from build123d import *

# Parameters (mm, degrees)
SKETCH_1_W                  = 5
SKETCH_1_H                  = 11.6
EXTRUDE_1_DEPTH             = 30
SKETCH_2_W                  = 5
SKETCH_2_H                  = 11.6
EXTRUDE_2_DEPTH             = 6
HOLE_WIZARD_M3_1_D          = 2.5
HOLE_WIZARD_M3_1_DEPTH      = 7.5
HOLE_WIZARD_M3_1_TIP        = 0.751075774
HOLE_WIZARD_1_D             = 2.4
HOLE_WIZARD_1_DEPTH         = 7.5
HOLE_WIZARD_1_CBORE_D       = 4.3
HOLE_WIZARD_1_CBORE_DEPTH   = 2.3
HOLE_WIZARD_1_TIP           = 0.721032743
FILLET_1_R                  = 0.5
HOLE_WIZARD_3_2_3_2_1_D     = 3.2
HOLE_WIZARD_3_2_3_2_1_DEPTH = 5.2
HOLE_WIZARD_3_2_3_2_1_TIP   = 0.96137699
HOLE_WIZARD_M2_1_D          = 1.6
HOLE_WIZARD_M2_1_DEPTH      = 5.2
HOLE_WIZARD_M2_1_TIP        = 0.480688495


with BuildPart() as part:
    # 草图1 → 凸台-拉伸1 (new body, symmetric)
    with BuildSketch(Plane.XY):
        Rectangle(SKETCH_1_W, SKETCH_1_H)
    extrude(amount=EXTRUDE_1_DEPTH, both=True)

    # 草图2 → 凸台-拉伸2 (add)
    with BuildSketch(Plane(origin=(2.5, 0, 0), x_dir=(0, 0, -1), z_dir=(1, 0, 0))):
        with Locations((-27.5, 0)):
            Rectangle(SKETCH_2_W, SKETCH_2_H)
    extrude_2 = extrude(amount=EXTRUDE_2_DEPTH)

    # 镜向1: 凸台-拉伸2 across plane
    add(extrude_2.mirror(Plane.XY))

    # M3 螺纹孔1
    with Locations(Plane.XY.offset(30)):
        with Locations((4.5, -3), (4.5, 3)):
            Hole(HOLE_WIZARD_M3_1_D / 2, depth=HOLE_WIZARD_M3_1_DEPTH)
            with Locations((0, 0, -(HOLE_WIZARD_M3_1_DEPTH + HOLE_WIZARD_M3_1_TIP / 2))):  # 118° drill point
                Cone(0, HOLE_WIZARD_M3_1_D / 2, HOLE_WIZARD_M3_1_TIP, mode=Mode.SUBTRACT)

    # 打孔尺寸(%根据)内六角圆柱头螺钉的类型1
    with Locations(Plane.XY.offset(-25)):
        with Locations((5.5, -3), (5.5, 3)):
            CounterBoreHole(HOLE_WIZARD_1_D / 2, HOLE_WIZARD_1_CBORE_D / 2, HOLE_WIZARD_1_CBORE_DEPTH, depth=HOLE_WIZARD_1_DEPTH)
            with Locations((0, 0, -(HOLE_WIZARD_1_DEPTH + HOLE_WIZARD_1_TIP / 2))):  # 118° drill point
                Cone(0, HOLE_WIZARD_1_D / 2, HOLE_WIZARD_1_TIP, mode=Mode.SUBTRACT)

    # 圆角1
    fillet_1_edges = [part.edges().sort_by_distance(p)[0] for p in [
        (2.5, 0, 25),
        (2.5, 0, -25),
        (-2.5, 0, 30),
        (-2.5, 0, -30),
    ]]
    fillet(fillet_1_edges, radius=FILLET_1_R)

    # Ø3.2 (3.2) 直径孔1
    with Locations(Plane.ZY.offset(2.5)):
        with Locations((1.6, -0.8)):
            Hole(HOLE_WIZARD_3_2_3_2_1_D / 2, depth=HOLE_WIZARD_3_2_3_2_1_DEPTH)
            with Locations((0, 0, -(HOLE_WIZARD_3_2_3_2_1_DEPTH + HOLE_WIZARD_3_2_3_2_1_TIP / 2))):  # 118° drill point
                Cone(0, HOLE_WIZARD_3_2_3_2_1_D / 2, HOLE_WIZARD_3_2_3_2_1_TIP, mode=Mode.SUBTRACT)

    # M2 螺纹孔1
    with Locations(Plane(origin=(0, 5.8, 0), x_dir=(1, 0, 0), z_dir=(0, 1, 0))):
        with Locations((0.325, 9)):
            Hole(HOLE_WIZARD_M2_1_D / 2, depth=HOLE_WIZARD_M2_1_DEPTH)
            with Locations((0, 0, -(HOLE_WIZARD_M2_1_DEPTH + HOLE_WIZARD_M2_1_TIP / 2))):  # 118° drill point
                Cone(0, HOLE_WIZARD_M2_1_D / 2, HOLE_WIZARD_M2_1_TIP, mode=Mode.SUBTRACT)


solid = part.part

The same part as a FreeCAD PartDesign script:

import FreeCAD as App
import Part
import Sketcher

V = App.Vector


def edges_at(feature, points):
    """Names of the edges that pass closest to the given points."""
    edges = feature.Shape.Edges
    near = lambda p: min(range(len(edges)), key=lambda i: edges[i].distToShape(Part.Vertex(*p))[0])
    return sorted({f"Edge{near(p) + 1}" for p in points})

doc = App.newDocument("Part")
body = doc.addObject("PartDesign::Body", "Body")

sketch1 = body.newObject("Sketcher::SketchObject", "Sketch")
sketch1.AttachmentSupport = (doc.getObject("XY_Plane"), [""])
sketch1.MapMode = "FlatFace"
sketch1.addGeometry([
    Part.LineSegment(V(-2.5, 5.8, 0), V(-2.5, -5.8, 0)),
    Part.LineSegment(V(-2.5, -5.8, 0), V(2.5, -5.8, 0)),
    Part.LineSegment(V(2.5, -5.8, 0), V(2.5, 5.8, 0)),
    Part.LineSegment(V(2.5, 5.8, 0), V(-2.5, 5.8, 0)),
], False)
sketch1.addConstraint([
    Sketcher.Constraint("Coincident", 0, 2, 1, 1),
    Sketcher.Constraint("Coincident", 1, 2, 2, 1),
    Sketcher.Constraint("Coincident", 2, 2, 3, 1),
    Sketcher.Constraint("Coincident", 3, 2, 0, 1),
    Sketcher.Constraint("Vertical", 0),
    Sketcher.Constraint("Horizontal", 1),
    Sketcher.Constraint("Vertical", 2),
    Sketcher.Constraint("Horizontal", 3),
    Sketcher.Constraint("Symmetric", 0, 2, 2, 2, -1, 1),
    Sketcher.Constraint("DistanceX", 1, 1, 1, 2, 5.0),
    Sketcher.Constraint("DistanceY", 0, 2, 0, 1, 11.6),
])
pad1 = body.newObject("PartDesign::Pad", "Pad")
pad1.Profile = sketch1
pad1.Length = 60
pad1.Midplane = True

sketch2 = body.newObject("Sketcher::SketchObject", "Sketch001")
sketch2.AttachmentSupport = (doc.getObject("YZ_Plane"), [""])
sketch2.MapMode = "FlatFace"
sketch2.AttachmentOffset = App.Placement(V(0, 0, 2.5), App.Rotation())
sketch2.addGeometry([
    Part.LineSegment(V(5.8, 30, 0), V(-5.8, 30, 0)),
    Part.LineSegment(V(-5.8, 30, 0), V(-5.8, 25, 0)),
    Part.LineSegment(V(-5.8, 25, 0), V(5.8, 25, 0)),
    Part.LineSegment(V(5.8, 25, 0), V(5.8, 30, 0)),
], False)
sketch2.addConstraint([
    Sketcher.Constraint("Coincident", 0, 2, 1, 1),
    Sketcher.Constraint("Coincident", 1, 2, 2, 1),
    Sketcher.Constraint("Coincident", 2, 2, 3, 1),
    Sketcher.Constraint("Coincident", 3, 2, 0, 1),
    Sketcher.Constraint("Horizontal", 0),
    Sketcher.Constraint("Vertical", 1),
    Sketcher.Constraint("Horizontal", 2),
    Sketcher.Constraint("Vertical", 3),
    Sketcher.Constraint("DistanceY", 1, 2, 1, 1, 5.0),
    Sketcher.Constraint("DistanceX", 0, 2, 0, 1, 11.6),
    Sketcher.Constraint("DistanceY", -1, 1, 0, 2, 30.0),
    Sketcher.Constraint("DistanceX", 0, 2, -1, 1, 5.8),
])
pad2 = body.newObject("PartDesign::Pad", "Pad001")
pad2.Profile = sketch2
pad2.Length = 6
doc.recompute()

mirrored = body.newObject("PartDesign::Mirrored", "Mirrored")
mirrored.Originals = [pad2]
mirrored.MirrorPlane = (doc.getObject("XY_Plane"), [""])
body.Tip = mirrored

sketch3 = body.newObject("Sketcher::SketchObject", "Sketch002")
sketch3.AttachmentSupport = (doc.getObject("XY_Plane"), [""])
sketch3.MapMode = "FlatFace"
sketch3.AttachmentOffset = App.Placement(V(0, 0, 30), App.Rotation())
sketch3.addGeometry([
    Part.Circle(V(4.5, -3, 0), V(0, 0, 1), 1.25),
    Part.Circle(V(4.5, 3, 0), V(0, 0, 1), 1.25),
], False)
sketch3.addConstraint([
    Sketcher.Constraint("Equal", 0, 1),
    Sketcher.Constraint("Symmetric", 0, 3, 1, 3, -1),
    Sketcher.Constraint("Diameter", 0, 2.5),
    Sketcher.Constraint("DistanceY", 0, 3, -1, 1, 3.0),
    Sketcher.Constraint("DistanceX", -1, 1, 0, 3, 4.5),
])
doc.recompute()
hole = body.newObject("PartDesign::Hole", "Hole")
hole.Profile = sketch3
hole.ThreadType = "None"
hole.Diameter = 2.5
hole.DepthType = "Dimension"
hole.Depth = 7.5
hole.DrillPoint = "Angled"
hole.DrillPointAngle = 118

sketch4 = body.newObject("Sketcher::SketchObject", "Sketch003")
sketch4.AttachmentSupport = (doc.getObject("XY_Plane"), [""])
sketch4.MapMode = "FlatFace"
sketch4.AttachmentOffset = App.Placement(V(0, 0, -25), App.Rotation())
sketch4.addGeometry([
    Part.Circle(V(5.5, -3, 0), V(0, 0, 1), 1.2),
    Part.Circle(V(5.5, 3, 0), V(0, 0, 1), 1.2),
], False)
sketch4.addConstraint([
    Sketcher.Constraint("Equal", 0, 1),
    Sketcher.Constraint("Symmetric", 0, 3, 1, 3, -1),
    Sketcher.Constraint("Diameter", 0, 2.4),
    Sketcher.Constraint("DistanceY", 0, 3, -1, 1, 3.0),
    Sketcher.Constraint("DistanceX", -1, 1, 0, 3, 5.5),
])
doc.recompute()
hole2 = body.newObject("PartDesign::Hole", "Hole001")
hole2.Profile = sketch4
hole2.ThreadType = "None"
hole2.Diameter = 2.4
hole2.DepthType = "Dimension"
hole2.Depth = 7.5
hole2.DrillPoint = "Angled"
hole2.DrillPointAngle = 118
hole2.HoleCutType = "Counterbore"
hole2.HoleCutDiameter = 4.3
hole2.HoleCutDepth = 2.3
doc.recompute()

fillet = body.newObject("PartDesign::Fillet", "Fillet")
fillet.Base = (hole2, edges_at(hole2, [
    (2.5, 0, 25),
    (2.5, 0, -25),
    (-2.5, 0, 30),
    (-2.5, 0, -30),
]))
fillet.Radius = 0.5

sketch5 = body.newObject("Sketcher::SketchObject", "Sketch004")
sketch5.AttachmentSupport = (doc.getObject("YZ_Plane"), [""])
sketch5.MapMode = "FlatFace"
sketch5.AttachmentOffset = App.Placement(V(0, 0, -2.5), App.Rotation())
sketch5.addGeometry(Part.Circle(V(-0.8, 1.6, 0), V(0, 0, 1), 1.6), False)
sketch5.addConstraint([
    Sketcher.Constraint("Diameter", 0, 3.2),
    Sketcher.Constraint("DistanceX", 0, 3, -1, 1, 0.8),
    Sketcher.Constraint("DistanceY", -1, 1, 0, 3, 1.6),
])
doc.recompute()
hole3 = body.newObject("PartDesign::Hole", "Hole002")
hole3.Profile = sketch5
hole3.ThreadType = "None"
hole3.Diameter = 3.2
hole3.DepthType = "Dimension"
hole3.Depth = 5.2
hole3.DrillPoint = "Angled"
hole3.DrillPointAngle = 118
hole3.Reversed = True

sketch6 = body.newObject("Sketcher::SketchObject", "Sketch005")
sketch6.AttachmentSupport = (doc.getObject("XZ_Plane"), [""])
sketch6.MapMode = "FlatFace"
sketch6.AttachmentOffset = App.Placement(V(0, 0, -5.8), App.Rotation())
sketch6.addGeometry(Part.Circle(V(0.325, -9, 0), V(0, 0, 1), 0.8), False)
sketch6.addConstraint([
    Sketcher.Constraint("Diameter", 0, 1.6),
    Sketcher.Constraint("DistanceY", 0, 3, -1, 1, 9.0),
    Sketcher.Constraint("DistanceX", -1, 1, 0, 3, 0.325),
])
doc.recompute()
hole4 = body.newObject("PartDesign::Hole", "Hole003")
hole4.Profile = sketch6
hole4.ThreadType = "None"
hole4.Diameter = 1.6
hole4.DepthType = "Dimension"
hole4.Depth = 5.2
hole4.DrillPoint = "Angled"
hole4.DrillPointAngle = 118
hole4.Reversed = True

doc.recompute()
